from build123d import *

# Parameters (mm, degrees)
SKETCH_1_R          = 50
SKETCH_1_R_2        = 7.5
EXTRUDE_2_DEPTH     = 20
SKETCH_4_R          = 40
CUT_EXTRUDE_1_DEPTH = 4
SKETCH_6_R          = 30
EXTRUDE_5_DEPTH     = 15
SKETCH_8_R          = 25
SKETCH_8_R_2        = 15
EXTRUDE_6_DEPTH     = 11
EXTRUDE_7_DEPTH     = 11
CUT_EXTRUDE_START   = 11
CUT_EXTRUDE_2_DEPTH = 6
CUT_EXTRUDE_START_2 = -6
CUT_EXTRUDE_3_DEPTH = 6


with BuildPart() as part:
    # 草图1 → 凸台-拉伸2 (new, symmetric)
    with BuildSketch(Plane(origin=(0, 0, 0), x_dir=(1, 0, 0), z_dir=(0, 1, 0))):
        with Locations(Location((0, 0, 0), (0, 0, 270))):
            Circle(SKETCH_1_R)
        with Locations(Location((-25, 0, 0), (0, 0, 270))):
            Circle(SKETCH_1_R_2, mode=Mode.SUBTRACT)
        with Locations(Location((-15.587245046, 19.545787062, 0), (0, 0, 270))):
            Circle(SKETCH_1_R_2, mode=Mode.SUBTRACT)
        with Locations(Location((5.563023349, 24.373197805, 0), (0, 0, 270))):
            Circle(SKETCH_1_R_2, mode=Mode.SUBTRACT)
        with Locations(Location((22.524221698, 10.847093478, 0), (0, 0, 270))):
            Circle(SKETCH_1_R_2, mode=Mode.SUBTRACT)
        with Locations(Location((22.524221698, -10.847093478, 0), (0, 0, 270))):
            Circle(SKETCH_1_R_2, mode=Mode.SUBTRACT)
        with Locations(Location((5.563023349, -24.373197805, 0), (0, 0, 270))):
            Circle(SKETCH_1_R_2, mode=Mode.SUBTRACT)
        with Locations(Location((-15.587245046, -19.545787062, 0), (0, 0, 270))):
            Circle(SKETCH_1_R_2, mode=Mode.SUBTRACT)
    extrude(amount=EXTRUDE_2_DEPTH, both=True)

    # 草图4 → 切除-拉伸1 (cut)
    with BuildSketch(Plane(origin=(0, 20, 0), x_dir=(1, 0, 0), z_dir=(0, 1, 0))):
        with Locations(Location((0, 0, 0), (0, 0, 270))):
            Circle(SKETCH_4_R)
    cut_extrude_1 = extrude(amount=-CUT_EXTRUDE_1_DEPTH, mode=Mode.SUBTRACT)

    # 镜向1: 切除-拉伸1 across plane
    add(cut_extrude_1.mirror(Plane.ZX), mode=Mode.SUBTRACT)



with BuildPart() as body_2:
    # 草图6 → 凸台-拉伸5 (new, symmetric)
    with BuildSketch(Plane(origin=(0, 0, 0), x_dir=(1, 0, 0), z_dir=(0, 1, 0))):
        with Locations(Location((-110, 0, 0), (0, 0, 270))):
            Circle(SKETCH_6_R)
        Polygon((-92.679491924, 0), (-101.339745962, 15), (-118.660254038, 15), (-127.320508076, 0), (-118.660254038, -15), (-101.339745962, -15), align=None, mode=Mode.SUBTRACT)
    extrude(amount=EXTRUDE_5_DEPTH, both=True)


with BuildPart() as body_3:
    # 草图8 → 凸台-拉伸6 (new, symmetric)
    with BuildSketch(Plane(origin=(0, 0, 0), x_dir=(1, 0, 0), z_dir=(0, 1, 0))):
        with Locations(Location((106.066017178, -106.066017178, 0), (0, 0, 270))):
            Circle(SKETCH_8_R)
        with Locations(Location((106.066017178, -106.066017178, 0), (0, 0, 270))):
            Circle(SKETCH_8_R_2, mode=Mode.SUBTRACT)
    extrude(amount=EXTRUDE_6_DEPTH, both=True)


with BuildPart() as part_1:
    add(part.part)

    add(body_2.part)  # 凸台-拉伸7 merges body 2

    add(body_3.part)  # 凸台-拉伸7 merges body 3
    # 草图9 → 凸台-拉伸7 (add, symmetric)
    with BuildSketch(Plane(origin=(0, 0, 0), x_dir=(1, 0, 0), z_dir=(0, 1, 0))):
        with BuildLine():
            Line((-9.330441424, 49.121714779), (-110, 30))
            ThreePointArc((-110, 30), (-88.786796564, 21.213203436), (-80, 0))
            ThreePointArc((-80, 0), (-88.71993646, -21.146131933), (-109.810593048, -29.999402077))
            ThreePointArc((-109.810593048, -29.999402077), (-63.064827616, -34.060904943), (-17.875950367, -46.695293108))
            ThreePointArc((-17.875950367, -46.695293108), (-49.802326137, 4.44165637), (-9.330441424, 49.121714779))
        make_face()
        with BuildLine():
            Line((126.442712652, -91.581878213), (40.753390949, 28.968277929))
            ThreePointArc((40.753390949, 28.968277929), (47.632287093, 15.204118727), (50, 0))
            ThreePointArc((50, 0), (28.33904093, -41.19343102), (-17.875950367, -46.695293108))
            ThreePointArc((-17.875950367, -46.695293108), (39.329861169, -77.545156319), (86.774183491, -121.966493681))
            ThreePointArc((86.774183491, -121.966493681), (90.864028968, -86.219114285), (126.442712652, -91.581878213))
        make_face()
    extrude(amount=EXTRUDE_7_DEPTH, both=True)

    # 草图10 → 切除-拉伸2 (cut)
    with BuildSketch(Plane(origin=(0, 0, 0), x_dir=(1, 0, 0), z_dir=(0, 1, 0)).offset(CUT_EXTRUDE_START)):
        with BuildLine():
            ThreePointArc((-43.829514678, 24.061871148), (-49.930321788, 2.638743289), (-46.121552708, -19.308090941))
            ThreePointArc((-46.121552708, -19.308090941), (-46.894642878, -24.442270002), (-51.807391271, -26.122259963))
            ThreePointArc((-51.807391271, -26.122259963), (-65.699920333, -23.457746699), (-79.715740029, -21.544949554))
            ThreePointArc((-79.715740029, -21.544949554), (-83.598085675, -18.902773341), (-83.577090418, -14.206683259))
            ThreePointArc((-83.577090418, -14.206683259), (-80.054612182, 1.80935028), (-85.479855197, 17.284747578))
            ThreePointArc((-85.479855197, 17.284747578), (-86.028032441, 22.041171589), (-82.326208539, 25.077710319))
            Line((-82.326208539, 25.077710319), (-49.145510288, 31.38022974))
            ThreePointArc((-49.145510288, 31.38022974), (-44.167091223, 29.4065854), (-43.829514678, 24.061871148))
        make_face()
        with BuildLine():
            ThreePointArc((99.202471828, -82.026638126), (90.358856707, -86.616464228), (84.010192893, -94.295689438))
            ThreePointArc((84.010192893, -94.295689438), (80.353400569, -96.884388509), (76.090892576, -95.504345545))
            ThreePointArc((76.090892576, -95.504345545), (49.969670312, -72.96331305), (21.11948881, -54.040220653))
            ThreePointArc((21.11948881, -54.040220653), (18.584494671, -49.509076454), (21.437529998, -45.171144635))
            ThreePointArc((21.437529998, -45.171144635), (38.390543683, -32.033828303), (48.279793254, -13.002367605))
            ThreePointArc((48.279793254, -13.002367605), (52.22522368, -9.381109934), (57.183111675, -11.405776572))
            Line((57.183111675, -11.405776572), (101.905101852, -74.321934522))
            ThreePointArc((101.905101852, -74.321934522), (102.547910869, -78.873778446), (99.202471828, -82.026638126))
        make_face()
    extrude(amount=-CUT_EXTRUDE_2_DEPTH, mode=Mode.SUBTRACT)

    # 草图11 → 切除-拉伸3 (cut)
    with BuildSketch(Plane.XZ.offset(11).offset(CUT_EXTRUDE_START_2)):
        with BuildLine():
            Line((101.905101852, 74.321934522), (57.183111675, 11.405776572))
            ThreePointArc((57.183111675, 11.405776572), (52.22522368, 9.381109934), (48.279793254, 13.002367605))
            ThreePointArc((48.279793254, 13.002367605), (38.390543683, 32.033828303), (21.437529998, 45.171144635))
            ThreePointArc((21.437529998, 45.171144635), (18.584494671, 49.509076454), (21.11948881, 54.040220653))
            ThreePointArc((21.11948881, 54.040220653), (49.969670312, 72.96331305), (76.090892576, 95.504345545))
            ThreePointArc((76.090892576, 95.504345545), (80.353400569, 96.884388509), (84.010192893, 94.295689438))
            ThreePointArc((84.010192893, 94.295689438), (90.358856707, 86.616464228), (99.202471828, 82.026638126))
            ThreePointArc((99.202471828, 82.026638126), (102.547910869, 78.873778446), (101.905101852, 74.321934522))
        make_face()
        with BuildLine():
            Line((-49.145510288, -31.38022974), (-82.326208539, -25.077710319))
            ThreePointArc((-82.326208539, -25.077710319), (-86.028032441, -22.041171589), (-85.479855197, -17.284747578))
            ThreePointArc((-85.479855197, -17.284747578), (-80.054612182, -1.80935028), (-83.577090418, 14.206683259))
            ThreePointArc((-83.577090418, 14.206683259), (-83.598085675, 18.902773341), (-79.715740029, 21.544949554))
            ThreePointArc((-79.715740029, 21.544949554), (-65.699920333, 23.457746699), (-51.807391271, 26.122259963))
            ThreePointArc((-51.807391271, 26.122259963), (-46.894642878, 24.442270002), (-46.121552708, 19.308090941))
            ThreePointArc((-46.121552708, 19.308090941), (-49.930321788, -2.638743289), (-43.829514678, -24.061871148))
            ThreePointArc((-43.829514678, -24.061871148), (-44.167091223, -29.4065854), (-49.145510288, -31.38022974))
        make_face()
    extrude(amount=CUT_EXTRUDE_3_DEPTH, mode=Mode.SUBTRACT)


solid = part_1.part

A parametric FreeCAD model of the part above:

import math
import FreeCAD as App
import Part
import Sketcher

V = App.Vector
Q = App.Units.Quantity

doc = App.newDocument("Part")
body = doc.addObject("PartDesign::Body", "Body")

sketch1 = body.newObject("Sketcher::SketchObject", "Sketch")
sketch1.AttachmentSupport = (doc.getObject("XZ_Plane"), [""])
sketch1.MapMode = "FlatFace"
sketch1.addGeometry(Part.Circle(V(0, 0, 0), V(0, 0, 1), 50), False)
sketch1.addGeometry(Part.Circle(V(-16, -20, 0), V(0, 0, 1), 8), False)
sketch1.addGeometry(Part.Circle(V(-25, 0, 0), V(0, 0, 1), 8), False)
sketch1.addGeometry(Part.Circle(V(-16, 20, 0), V(0, 0, 1), 8), False)
sketch1.addGeometry(Part.Circle(V(6, -24, 0), V(0, 0, 1), 8), False)
sketch1.addGeometry(Part.Circle(V(23, -11, 0), V(0, 0, 1), 8), False)
sketch1.addGeometry(Part.Circle(V(6, 24, 0), V(0, 0, 1), 8), False)
sketch1.addGeometry(Part.Circle(V(23, 11, 0), V(0, 0, 1), 8), False)
sketch1.addConstraint(Sketcher.Constraint("Coincident", 0, 3, -1, 1))
sketch1.addConstraint(Sketcher.Constraint("Equal", 1, 2))
sketch1.addConstraint(Sketcher.Constraint("Equal", 2, 3))
sketch1.addConstraint(Sketcher.Constraint("Equal", 3, 4))
sketch1.addConstraint(Sketcher.Constraint("Equal", 4, 5))
sketch1.addConstraint(Sketcher.Constraint("Equal", 5, 6))
sketch1.addConstraint(Sketcher.Constraint("Equal", 6, 7))
sketch1.addConstraint(Sketcher.Constraint("Symmetric", 1, 3, 3, 3, -1))
sketch1.addConstraint(Sketcher.Constraint("Symmetric", 4, 3, 6, 3, -1))
sketch1.addConstraint(Sketcher.Constraint("Symmetric", 5, 3, 7, 3, -1))
sketch1.addConstraint(Sketcher.Constraint("PointOnObject", 2, 3, -1))
sketch1.addConstraint(Sketcher.Constraint("Diameter", 0, 100.0))
sketch1.addConstraint(Sketcher.Constraint("Diameter", 1, 15.0))
sketch1.addConstraint(Sketcher.Constraint("DistanceX", 2, 3, -1, 1, 25.0))
sketch1.addConstraint(Sketcher.Constraint("DistanceX", 4, 3, 5, 3, 16.961198))
sketch1.addConstraint(Sketcher.Constraint("DistanceX", -1, 1, 5, 3, 22.524222))
sketch1.addConstraint(Sketcher.Constraint("DistanceX", 1, 3, 4, 3, 21.150268))
sketch1.addConstraint(Sketcher.Constraint("DistanceY", 4, 3, 1, 3, 4.827411))
sketch1.addConstraint(Sketcher.Constraint("DistanceY", 5, 3, 3, 3, 30.392881))
sketch1.addConstraint(Sketcher.Constraint("DistanceY", 1, 3, -1, 1, 19.545787))
pad1 = body.newObject("PartDesign::Pad", "Pad")
pad1.Profile = sketch1
pad1.Length = 40
pad1.Midplane = True

sketch2 = body.newObject("Sketcher::SketchObject", "Sketch001")
sketch2.AttachmentSupport = (doc.getObject("XZ_Plane"), [""])
sketch2.MapMode = "FlatFace"
sketch2.AttachmentOffset = App.Placement(V(0, 0, -20), App.Rotation())
sketch2.addGeometry(Part.Circle(V(0, 0, 0), V(0, 0, 1), 40), False)
sketch2.addConstraint(Sketcher.Constraint("Coincident", 0, 3, -1, 1))
sketch2.addConstraint(Sketcher.Constraint("Diameter", 0, 80.0))
pocket1 = body.newObject("PartDesign::Pocket", "Pocket")
pocket1.Profile = sketch2
pocket1.Length = 4
pocket1.Reversed = True
doc.recompute()

mirrored = body.newObject("PartDesign::Mirrored", "Mirrored")
mirrored.Originals = [pocket1]
mirrored.MirrorPlane = (doc.getObject("XZ_Plane"), [""])
body.Tip = mirrored
body2 = doc.addObject("PartDesign::Body", "Body001")

sketch3 = body2.newObject("Sketcher::SketchObject", "Sketch002")
sketch3.AttachmentSupport = (doc.getObject("XZ_Plane001"), [""])
sketch3.MapMode = "FlatFace"
sketch3.addGeometry(Part.Circle(V(-110, 0, 0), V(0, 0, 1), 30), False)
sketch3.addGeometry(Part.LineSegment(V(-101, -15, 0), V(-93, 0, 0)), False)
sketch3.addGeometry(Part.LineSegment(V(-93, 0, 0), V(-101, 15, 0)), False)
sketch3.addGeometry(Part.LineSegment(V(-101, 15, 0), V(-119, 15, 0)), False)
sketch3.addGeometry(Part.LineSegment(V(-119, 15, 0), V(-127, 0, 0)), False)
sketch3.addGeometry(Part.LineSegment(V(-127, 0, 0), V(-119, -15, 0)), False)
sketch3.addGeometry(Part.LineSegment(V(-119, -15, 0), V(-101, -15, 0)), False)
sketch3.addConstraint(Sketcher.Constraint("Coincident", 1, 2, 2, 1))
sketch3.addConstraint(Sketcher.Constraint("Coincident", 2, 2, 3, 1))
sketch3.addConstraint(Sketcher.Constraint("Coincident", 3, 2, 4, 1))
sketch3.addConstraint(Sketcher.Constraint("Coincident", 4, 2, 5, 1))
sketch3.addConstraint(Sketcher.Constraint("Coincident", 5, 2, 6, 1))
sketch3.addConstraint(Sketcher.Constraint("Coincident", 6, 2, 1, 1))
sketch3.addConstraint(Sketcher.Constraint("Horizontal", 3))
sketch3.addConstraint(Sketcher.Constraint("Horizontal", 6))
sketch3.addConstraint(Sketcher.Constraint("Symmetric", 3, 2, 5, 2, -1))
sketch3.addConstraint(Sketcher.Constraint("PointOnObject", 0, 3, -1))
sketch3.addConstraint(Sketcher.Constraint("PointOnObject", 1, 2, -1))
sketch3.addConstraint(Sketcher.Constraint("PointOnObject", 4, 2, -1))
sketch3.addConstraint(Sketcher.Constraint("Parallel", 1, 4))
sketch3.addConstraint(Sketcher.Constraint("Parallel", 2, 5))
sketch3.addConstraint(Sketcher.Constraint("Diameter", 0, 60.0))
sketch3.addConstraint(Sketcher.Constraint("Angle", 1, Q("60 deg")))
sketch3.addConstraint(Sketcher.Constraint("DistanceX", 0, 3, -1, 1, 110.0))
sketch3.addConstraint(Sketcher.Constraint("DistanceY", -1, 1, 2, 2, 15.0))
sketch3.addConstraint(Sketcher.Constraint("DistanceX", 3, 2, 3, 1, 17.320508))
sketch3.addConstraint(Sketcher.Constraint("DistanceX", 1, 2, -1, 1, 92.679492))
pad2 = body2.newObject("PartDesign::Pad", "Pad001")
pad2.Profile = sketch3
pad2.Length = 30
pad2.Midplane = True
body3 = doc.addObject("PartDesign::Body", "Body002")

sketch4 = body3.newObject("Sketcher::SketchObject", "Sketch003")
sketch4.AttachmentSupport = (doc.getObject("XZ_Plane002"), [""])
sketch4.MapMode = "FlatFace"
sketch4.addGeometry(Part.Circle(V(106, 106, 0), V(0, 0, 1), 25), False)
sketch4.addGeometry(Part.Circle(V(106, 106, 0), V(0, 0, 1), 15), False)
sketch4.addConstraint(Sketcher.Constraint("Coincident", 1, 3, 0, 3))
sketch4.addConstraint(Sketcher.Constraint("Diameter", 0, 50.0))
sketch4.addConstraint(Sketcher.Constraint("Diameter", 1, 30.0))
sketch4.addConstraint(Sketcher.Constraint("DistanceX", -1, 1, 0, 3, 106.066017))
sketch4.addConstraint(Sketcher.Constraint("DistanceY", -1, 1, 0, 3, 106.066017))
pad3 = body3.newObject("PartDesign::Pad", "Pad002")
pad3.Profile = sketch4
pad3.Length = 22
pad3.Midplane = True
body.AllowCompound = True
doc.recompute()

boolean = body.newObject("PartDesign::Boolean", "Boolean")
boolean.Type = "Fuse"
boolean.addObjects([body2])
doc.recompute()

boolean2 = body.newObject("PartDesign::Boolean", "Boolean001")
boolean2.Type = "Fuse"
boolean2.addObjects([body3])

sketch5 = body.newObject("Sketcher::SketchObject", "Sketch004")
sketch5.AttachmentSupport = (doc.getObject("XZ_Plane"), [""])
sketch5.MapMode = "FlatFace"
sketch5.addGeometry(Part.LineSegment(V(-9, -49, 0), V(-110, -30, 0)), False)
sketch5.addGeometry(Part.ArcOfCircle(Part.Circle(V(-110, 0, 0), V(0, 0, 1), 30), math.radians(-90), math.radians(0)), False)
sketch5.addGeometry(Part.ArcOfCircle(Part.Circle(V(-110, 0, 0), V(0, 0, 1), 30), math.radians(0), math.radians(90)), False)
sketch5.addGeometry(Part.ArcOfCircle(Part.Circle(V(-108, 283, 0), V(0, 0, 1), 253), math.radians(-90), math.radians(-69)), False)
sketch5.addGeometry(Part.ArcOfCircle(Part.Circle(V(0, 0, 0), V(0, 0, 1), 50), math.radians(111), math.radians(259)), False)
sketch5.addGeometry(Part.LineSegment(V(126, 92, 0), V(41, -29, 0)), False)
sketch5.addGeometry(Part.ArcOfCircle(Part.Circle(V(0, 0, 0), V(0, 0, 1), 50), math.radians(-35), math.radians(0)), False)
sketch5.addGeometry(Part.ArcOfCircle(Part.Circle(V(0, 0, 0), V(0, 0, 1), 50), math.radians(0), math.radians(111)), False)
sketch5.addGeometry(Part.ArcOfCircle(Part.Circle(V(-108, 283, 0), V(0, 0, 1), 253), math.radians(-69), math.radians(-39)), False)
sketch5.addGeometry(Part.ArcOfCircle(Part.Circle(V(106, 106, 0), V(0, 0, 1), 25), math.radians(141), math.radians(325)), False)
sketch5.addConstraint(Sketcher.Constraint("Coincident", 0, 2, 1, 1))
sketch5.addConstraint(Sketcher.Constraint("Tangent", 1, 2, 2, 1))
sketch5.addConstraint(Sketcher.Constraint("Tangent", 2, 2, 3, 1))
sketch5.addConstraint(Sketcher.Constraint("Tangent", 3, 2, 4, 1))
sketch5.addConstraint(Sketcher.Constraint("Tangent", 4, 2, 0, 1))
sketch5.addConstraint(Sketcher.Constraint("Tangent", 5, 2, 6, 1))
sketch5.addConstraint(Sketcher.Constraint("Tangent", 6, 2, 7, 1))
sketch5.addConstraint(Sketcher.Constraint("Tangent", 7, 2, 8, 1))
sketch5.addConstraint(Sketcher.Constraint("Tangent", 8, 2, 9, 1))
sketch5.addConstraint(Sketcher.Constraint("Tangent", 9, 2, 5, 1))
sketch5.addConstraint(Sketcher.Constraint("Coincident", 4, 3, -1, 1))
sketch5.addConstraint(Sketcher.Constraint("Coincident", 6, 3, -1, 1))
sketch5.addConstraint(Sketcher.Constraint("Coincident", 8, 3, 3, 3))
sketch5.addConstraint(Sketcher.Constraint("Coincident", 7, 2, 3, 2))
sketch5.addConstraint(Sketcher.Constraint("Equal", 1, 2))
sketch5.addConstraint(Sketcher.Constraint("PointOnObject", 1, 3, -1))
sketch5.addConstraint(Sketcher.Constraint("PointOnObject", 1, 2, -1))
sketch5.addConstraint(Sketcher.Constraint("PointOnObject", 6, 2, -1))
sketch5.addConstraint(Sketcher.Constraint("Vertical", 2, 3, 0, 2))
sketch5.addConstraint(Sketcher.Constraint("Radius", 1, 30.0))
sketch5.addConstraint(Sketcher.Constraint("Radius", 4, 50.0))
sketch5.addConstraint(Sketcher.Constraint("Radius", 9, 25.0))
sketch5.addConstraint(Sketcher.Constraint("DistanceX", 1, 3, -1, 1, 110.0))
sketch5.addConstraint(Sketcher.Constraint("Radius", 8, 252.683912))
sketch5.addConstraint(Sketcher.Constraint("DistanceY", 3, 2, 8, 2, 75.271201))
pad4 = body.newObject("PartDesign::Pad", "Pad003")
pad4.Profile = sketch5
pad4.Length = 22
pad4.Midplane = True

sketch6 = body.newObject("Sketcher::SketchObject", "Sketch005")
sketch6.AttachmentSupport = (doc.getObject("XZ_Plane"), [""])
sketch6.MapMode = "FlatFace"
sketch6.AttachmentOffset = App.Placement(V(0, 0, -11), App.Rotation())
sketch6.addGeometry(Part.ArcOfCircle(Part.Circle(V(0, 0, 0), V(0, 0, 1), 50), math.radians(157), math.radians(209)), False)
sketch6.addGeometry(Part.ArcOfCircle(Part.Circle(V(-48.2, -26.5, 0), V(0, 0, 1), 5), math.radians(-101), math.radians(29)), False)
sketch6.addGeometry(Part.LineSegment(V(-49.1, -31.4, 0), V(-82.3, -25.1, 0)), False)
sketch6.addGeometry(Part.ArcOfCircle(Part.Circle(V(-81.4, -20.2, 0), V(0, 0, 1), 5), math.radians(145), math.radians(259)), False)
sketch6.addGeometry(Part.ArcOfCircle(Part.Circle(V(-110, 0, 0), V(0, 0, 1), 30), math.radians(-35), math.radians(28)), False)
sketch6.addGeometry(Part.ArcOfCircle(Part.Circle(V(-79.2, 16.6, 0), V(0, 0, 1), 5), math.radians(96), math.radians(208)), False)
sketch6.addGeometry(Part.ArcOfCircle(Part.Circle(V(-108.2, 282.7, 0), V(0, 0, 1), 262.7), math.radians(-83.77), math.radians(-77.6)), False)
sketch6.addGeometry(Part.ArcOfCircle(Part.Circle(V(-50.7, 21.2, 0), V(0, 0, 1), 5), math.radians(-23), math.radians(102)), False)
sketch6.addGeometry(Part.ArcOfCircle(Part.Circle(V(106.1, 106.1, 0), V(0, 0, 1), 25), math.radians(-152), math.radians(-106)), False)
sketch6.addGeometry(Part.ArcOfCircle(Part.Circle(V(97.8, 77.2, 0), V(0, 0, 1), 5), math.radians(-35), math.radians(74)), False)
sketch6.addGeometry(Part.LineSegment(V(101.9, 74.3, 0), V(57.2, 11.4, 0)), False)
sketch6.addGeometry(Part.ArcOfCircle(Part.Circle(V(53.1, 14.3, 0), V(0, 0, 1), 5), math.radians(-165), math.radians(-35)), False)
sketch6.addGeometry(Part.ArcOfCircle(Part.Circle(V(0, 0, 0), V(0, 0, 1), 50), math.radians(15), math.radians(65)), False)
sketch6.addGeometry(Part.ArcOfCircle(Part.Circle(V(23.6, 49.7, 0), V(0, 0, 1), 5), math.radians(119), math.radians(245)), False)
sketch6.addGeometry(Part.ArcOfCircle(Part.Circle(V(-108.2, 282.7, 0), V(0, 0, 1), 262.7), math.radians(-60.5), math.radians(-45.44)), False)
sketch6.addGeometry(Part.ArcOfCircle(Part.Circle(V(79.6, 91.9, 0), V(0, 0, 1), 5), math.radians(28), math.radians(135)), False)
sketch6.addConstraint(Sketcher.Constraint("Tangent", 0, 2, 1, 2))
sketch6.addConstraint(Sketcher.Constraint("Tangent", 1, 1, 2, 1))
sketch6.addConstraint(Sketcher.Constraint("Tangent", 2, 2, 3, 2))
sketch6.addConstraint(Sketcher.Constraint("Tangent", 3, 1, 4, 1))
sketch6.addConstraint(Sketcher.Constraint("Tangent", 4, 2, 5, 2))
sketch6.addConstraint(Sketcher.Constraint("Tangent", 5, 1, 6, 1))
sketch6.addConstraint(Sketcher.Constraint("Tangent", 6, 2, 7, 2))
sketch6.addConstraint(Sketcher.Constraint("Tangent", 7, 1, 0, 1))
sketch6.addConstraint(Sketcher.Constraint("Tangent", 8, 2, 9, 2))
sketch6.addConstraint(Sketcher.Constraint("Tangent", 9, 1, 10, 1))
sketch6.addConstraint(Sketcher.Constraint("Tangent", 10, 2, 11, 2))
sketch6.addConstraint(Sketcher.Constraint("Tangent", 11, 1, 12, 1))
sketch6.addConstraint(Sketcher.Constraint("Tangent", 12, 2, 13, 2))
sketch6.addConstraint(Sketcher.Constraint("Tangent", 13, 1, 14, 1))
sketch6.addConstraint(Sketcher.Constraint("Tangent", 14, 2, 15, 2))
sketch6.addConstraint(Sketcher.Constraint("Tangent", 15, 1, 8, 1))
sketch6.addConstraint(Sketcher.Constraint("Coincident", 0, 3, -1, 1))
sketch6.addConstraint(Sketcher.Constraint("Coincident", 12, 3, -1, 1))
sketch6.addConstraint(Sketcher.Constraint("Coincident", 14, 3, 6, 3))
sketch6.addConstraint(Sketcher.Constraint("Equal", 1, 3))
sketch6.addConstraint(Sketcher.Constraint("Equal", 3, 5))
sketch6.addConstraint(Sketcher.Constraint("Equal", 5, 7))
sketch6.addConstraint(Sketcher.Constraint("Equal", 7, 9))
sketch6.addConstraint(Sketcher.Constraint("Equal", 9, 11))
sketch6.addConstraint(Sketcher.Constraint("Equal", 0, 12))
sketch6.addConstraint(Sketcher.Constraint("Equal", 11, 13))
sketch6.addConstraint(Sketcher.Constraint("Equal", 6, 14))
sketch6.addConstraint(Sketcher.Constraint("Equal", 13, 15))
sketch6.addConstraint(Sketcher.Constraint("PointOnObject", 4, 3, -1))
sketch6.addConstraint(Sketcher.Constraint("Radius", 0, 50.0))
sketch6.addConstraint(Sketcher.Constraint("Radius", 1, 5.0))
sketch6.addConstraint(Sketcher.Constraint("Radius", 4, 30.0))
sketch6.addConstraint(Sketcher.Constraint("Radius", 8, 25.0))
sketch6.addConstraint(Sketcher.Constraint("DistanceX", 4, 3, -1, 1, 110.0))
sketch6.addConstraint(Sketcher.Constraint("Radius", 6, 262.683912))
sketch6.addConstraint(Sketcher.Constraint("DistanceY", -1, 1, 7, 3, 21.2389))
sketch6.addConstraint(Sketcher.Constraint("DistanceX", -1, 1, 9, 1, 101.905102))
sketch6.addConstraint(Sketcher.Constraint("DistanceX", 3, 3, 1, 3, 33.180698))
sketch6.addConstraint(Sketcher.Constraint("DistanceY", 5, 3, 9, 3, 60.644299))
sketch6.addConstraint(Sketcher.Constraint("DistanceX", 11, 3, 8, 2, 46.094699))
sketch6.addConstraint(Sketcher.Constraint("Distance", 2, 33.773962))
sketch6.addConstraint(Sketcher.Constraint("DistanceY", -1, 1, 6, 3, 282.678278))
sketch6.addConstraint(Sketcher.Constraint("DistanceX", -1, 1, 15, 3, 79.599028))
pocket2 = body.newObject("PartDesign::Pocket", "Pocket001")
pocket2.Profile = sketch6
pocket2.Length = 6
pocket2.Reversed = True

sketch7 = body.newObject("Sketcher::SketchObject", "Sketch006")
sketch7.AttachmentSupport = (doc.getObject("XZ_Plane"), [""])
sketch7.MapMode = "FlatFace"
sketch7.AttachmentOffset = App.Placement(V(0, 0, 5), App.Rotation())
sketch7.addGeometry(Part.LineSegment(V(57.2, 11.4, 0), V(101.9, 74.3, 0)), False)
sketch7.addGeometry(Part.ArcOfCircle(Part.Circle(V(97.8, 77.2, 0), V(0, 0, 1), 5), math.radians(-35), math.radians(74)), False)
sketch7.addGeometry(Part.ArcOfCircle(Part.Circle(V(106.1, 106.1, 0), V(0, 0, 1), 25), math.radians(-152), math.radians(-106)), False)
sketch7.addGeometry(Part.ArcOfCircle(Part.Circle(V(79.6, 91.9, 0), V(0, 0, 1), 5), math.radians(28), math.radians(135)), False)
sketch7.addGeometry(Part.ArcOfCircle(Part.Circle(V(-108.2, 282.7, 0), V(0, 0, 1), 262.7), math.radians(-60.5), math.radians(-45.44)), False)
sketch7.addGeometry(Part.ArcOfCircle(Part.Circle(V(23.6, 49.7, 0), V(0, 0, 1), 5), math.radians(119), math.radians(245)), False)
sketch7.addGeometry(Part.ArcOfCircle(Part.Circle(V(0, 0, 0), V(0, 0, 1), 50), math.radians(15), math.radians(65)), False)
sketch7.addGeometry(Part.ArcOfCircle(Part.Circle(V(53.1, 14.3, 0), V(0, 0, 1), 5), math.radians(-165), math.radians(-35)), False)
sketch7.addGeometry(Part.LineSegment(V(-82.3, -25.1, 0), V(-49.1, -31.4, 0)), False)
sketch7.addGeometry(Part.ArcOfCircle(Part.Circle(V(-48.2, -26.5, 0), V(0, 0, 1), 5), math.radians(-101), math.radians(29)), False)
sketch7.addGeometry(Part.ArcOfCircle(Part.Circle(V(0, 0, 0), V(0, 0, 1), 50), math.radians(157), math.radians(209)), False)
sketch7.addGeometry(Part.ArcOfCircle(Part.Circle(V(-50.7, 21.2, 0), V(0, 0, 1), 5), math.radians(-23), math.radians(102)), False)
sketch7.addGeometry(Part.ArcOfCircle(Part.Circle(V(-108.2, 282.7, 0), V(0, 0, 1), 262.7), math.radians(-83.77), math.radians(-77.6)), False)
sketch7.addGeometry(Part.ArcOfCircle(Part.Circle(V(-79.2, 16.6, 0), V(0, 0, 1), 5), math.radians(96), math.radians(208)), False)
sketch7.addGeometry(Part.ArcOfCircle(Part.Circle(V(-110, 0, 0), V(0, 0, 1), 30), math.radians(-35), math.radians(28)), False)
sketch7.addGeometry(Part.ArcOfCircle(Part.Circle(V(-81.4, -20.2, 0), V(0, 0, 1), 5), math.radians(145), math.radians(259)), False)
sketch7.addConstraint(Sketcher.Constraint("Tangent", 0, 2, 1, 1))
sketch7.addConstraint(Sketcher.Constraint("Tangent", 1, 2, 2, 2))
sketch7.addConstraint(Sketcher.Constraint("Tangent", 2, 1, 3, 1))
sketch7.addConstraint(Sketcher.Constraint("Tangent", 3, 2, 4, 2))
sketch7.addConstraint(Sketcher.Constraint("Tangent", 4, 1, 5, 1))
sketch7.addConstraint(Sketcher.Constraint("Tangent", 5, 2, 6, 2))
sketch7.addConstraint(Sketcher.Constraint("Tangent", 6, 1, 7, 1))
sketch7.addConstraint(Sketcher.Constraint("Tangent", 7, 2, 0, 1))
sketch7.addConstraint(Sketcher.Constraint("Tangent", 8, 2, 9, 1))
sketch7.addConstraint(Sketcher.Constraint("Tangent", 9, 2, 10, 2))
sketch7.addConstraint(Sketcher.Constraint("Tangent", 10, 1, 11, 1))
sketch7.addConstraint(Sketcher.Constraint("Tangent", 11, 2, 12, 2))
sketch7.addConstraint(Sketcher.Constraint("Tangent", 12, 1, 13, 1))
sketch7.addConstraint(Sketcher.Constraint("Tangent", 13, 2, 14, 2))
sketch7.addConstraint(Sketcher.Constraint("Tangent", 14, 1, 15, 1))
sketch7.addConstraint(Sketcher.Constraint("Tangent", 15, 2, 8, 1))
sketch7.addConstraint(Sketcher.Constraint("Coincident", 6, 3, -1, 1))
sketch7.addConstraint(Sketcher.Constraint("Coincident", 10, 3, -1, 1))
sketch7.addConstraint(Sketcher.Constraint("Coincident", 12, 3, 4, 3))
sketch7.addConstraint(Sketcher.Constraint("Equal", 1, 3))
sketch7.addConstraint(Sketcher.Constraint("Equal", 3, 5))
sketch7.addConstraint(Sketcher.Constraint("Equal", 5, 7))
sketch7.addConstraint(Sketcher.Constraint("Equal", 7, 9))
sketch7.addConstraint(Sketcher.Constraint("Equal", 6, 10))
sketch7.addConstraint(Sketcher.Constraint("Equal", 9, 11))
sketch7.addConstraint(Sketcher.Constraint("Equal", 4, 12))
sketch7.addConstraint(Sketcher.Constraint("Equal", 11, 13))
sketch7.addConstraint(Sketcher.Constraint("Equal", 13, 15))
sketch7.addConstraint(Sketcher.Constraint("PointOnObject", 14, 3, -1))
sketch7.addConstraint(Sketcher.Constraint("Radius", 1, 5.0))
sketch7.addConstraint(Sketcher.Constraint("Radius", 2, 25.0))
sketch7.addConstraint(Sketcher.Constraint("Radius", 6, 50.0))
sketch7.addConstraint(Sketcher.Constraint("Radius", 14, 30.0))
sketch7.addConstraint(Sketcher.Constraint("DistanceX", 14, 3, -1, 1, 110.0))
sketch7.addConstraint(Sketcher.Constraint("Radius", 4, 262.683912))
sketch7.addConstraint(Sketcher.Constraint("DistanceY", -1, 1, 11, 3, 21.2389))
sketch7.addConstraint(Sketcher.Constraint("DistanceX", -1, 1, 0, 2, 101.905102))
sketch7.addConstraint(Sketcher.Constraint("DistanceX", 15, 3, 9, 3, 33.180698))
sketch7.addConstraint(Sketcher.Constraint("DistanceX", 7, 3, 1, 2, 46.094699))
sketch7.addConstraint(Sketcher.Constraint("DistanceX", 3, 2, 2, 1, 7.9193))
sketch7.addConstraint(Sketcher.Constraint("DistanceX", 13, 2, 11, 2, 31.769699))
sketch7.addConstraint(Sketcher.Constraint("Distance", 8, 33.773962))
sketch7.addConstraint(Sketcher.Constraint("DistanceX", -1, 1, 3, 3, 79.599028))
pocket3 = body.newObject("PartDesign::Pocket", "Pocket002")
pocket3.Profile = sketch7
pocket3.Length = 6
pocket3.Reversed = True

doc.recompute()
